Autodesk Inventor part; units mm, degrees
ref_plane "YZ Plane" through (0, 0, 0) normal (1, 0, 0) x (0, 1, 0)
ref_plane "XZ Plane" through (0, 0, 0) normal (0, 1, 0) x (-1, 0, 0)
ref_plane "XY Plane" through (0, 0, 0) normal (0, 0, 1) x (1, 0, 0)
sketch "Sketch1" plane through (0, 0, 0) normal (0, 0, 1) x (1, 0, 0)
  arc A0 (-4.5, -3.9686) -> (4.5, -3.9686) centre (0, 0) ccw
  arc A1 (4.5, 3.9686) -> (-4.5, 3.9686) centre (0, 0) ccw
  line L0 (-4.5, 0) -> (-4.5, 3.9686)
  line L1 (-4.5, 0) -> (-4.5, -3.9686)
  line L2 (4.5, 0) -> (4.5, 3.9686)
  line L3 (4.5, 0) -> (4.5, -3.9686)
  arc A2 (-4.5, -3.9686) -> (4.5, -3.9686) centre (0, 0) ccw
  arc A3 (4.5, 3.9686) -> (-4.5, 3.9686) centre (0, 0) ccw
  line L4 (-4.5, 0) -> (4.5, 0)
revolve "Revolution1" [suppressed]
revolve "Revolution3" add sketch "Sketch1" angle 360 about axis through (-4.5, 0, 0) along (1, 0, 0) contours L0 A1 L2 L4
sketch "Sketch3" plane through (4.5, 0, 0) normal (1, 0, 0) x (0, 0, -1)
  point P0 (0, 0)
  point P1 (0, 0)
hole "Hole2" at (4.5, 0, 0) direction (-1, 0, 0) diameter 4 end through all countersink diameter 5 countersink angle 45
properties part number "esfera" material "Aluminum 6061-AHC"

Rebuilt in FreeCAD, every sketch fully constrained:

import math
import FreeCAD as App
import Part
import Sketcher
from FreeCAD import Vector
Q = App.Units.Quantity

doc = App.newDocument("Part")
body = doc.addObject("PartDesign::Body", "Body")

# Sketch on XY plane
sketch1 = body.newObject("Sketcher::SketchObject", "Sketch")
sketch1.AttachmentSupport = (doc.getObject("XY_Plane"), [""])
sketch1.MapMode = "FlatFace"
sketch1.addGeometry([
    Part.LineSegment(Vector(-4.5, 4, 0), Vector(-4.5, 0, 0)),
    Part.LineSegment(Vector(-4.5, 0, 0), Vector(4.5, 0, 0)),
    Part.LineSegment(Vector(4.5, 0, 0), Vector(4.5, 4, 0)),
    Part.ArcOfCircle(Part.Circle(Vector(0, 0, 0), Vector(0, 0, 1), 6), math.radians(41), math.radians(139)),
], False)
sketch1.addConstraint([
    Sketcher.Constraint("Coincident", 0, 2, 1, 1),
    Sketcher.Constraint("Coincident", 1, 2, 2, 1),
    Sketcher.Constraint("Coincident", 2, 2, 3, 1),
    Sketcher.Constraint("Coincident", 3, 2, 0, 1),
    Sketcher.Constraint("Vertical", 0),
    Sketcher.Constraint("Horizontal", 1),
    Sketcher.Constraint("Vertical", 2),
    Sketcher.Constraint("Coincident", 3, 3, -1, 1),
    Sketcher.Constraint("Symmetric", 0, 2, 1, 2, -1, 1),
    Sketcher.Constraint("Radius", 3, Q("6 mm")),
    Sketcher.Constraint("DistanceX", 1, 1, 1, 2, Q("9 mm")),
])
revolution = body.newObject("PartDesign::Revolution", "Revolution")
revolution.Profile = sketch1
revolution.ReferenceAxis = (sketch1, ["H_Axis"])
revolution.Angle = 360

# Sketch on YZ plane
sketch2 = body.newObject("Sketcher::SketchObject", "Sketch001")
sketch2.AttachmentSupport = (doc.getObject("YZ_Plane"), [""])
sketch2.MapMode = "FlatFace"
sketch2.AttachmentOffset = App.Placement(Vector(0, 0, 4.5), App.Rotation())
sketch2.addGeometry(Part.Circle(Vector(0, 0, 0), Vector(0, 0, 1), 2), False)
sketch2.addConstraint([
    Sketcher.Constraint("Coincident", 0, 3, -1, 1),
    Sketcher.Constraint("Diameter", 0, Q("4 mm")),
])
doc.recompute()
hole = body.newObject("PartDesign::Hole", "Hole")
hole.Profile = sketch2
hole.ThreadType = "None"
hole.Diameter = 4
hole.DepthType = "ThroughAll"
hole.HoleCutType = "Countersink"
hole.HoleCutDiameter = 5
hole.HoleCutCountersinkAngle = 45

doc.recompute()
